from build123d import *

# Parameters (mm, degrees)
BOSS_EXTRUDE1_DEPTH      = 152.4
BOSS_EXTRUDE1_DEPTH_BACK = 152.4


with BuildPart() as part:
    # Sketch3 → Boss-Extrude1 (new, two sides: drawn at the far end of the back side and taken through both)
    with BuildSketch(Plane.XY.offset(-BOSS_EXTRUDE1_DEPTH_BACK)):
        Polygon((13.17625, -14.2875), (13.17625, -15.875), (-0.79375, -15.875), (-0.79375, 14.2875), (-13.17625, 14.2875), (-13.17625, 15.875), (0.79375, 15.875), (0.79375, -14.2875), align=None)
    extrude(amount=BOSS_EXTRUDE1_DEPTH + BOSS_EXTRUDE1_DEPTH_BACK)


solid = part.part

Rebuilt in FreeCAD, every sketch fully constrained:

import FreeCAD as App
import Part
import Sketcher
from FreeCAD import Vector
Q = App.Units.Quantity


def add_polygon(sketch, points):
    """Adds a closed chain of lines whose ends are joined by coincident constraints."""
    first, n = sketch.GeometryCount, len(points)
    for a, b in zip(points, points[1:] + points[:1]):
        sketch.addGeometry(Part.LineSegment(App.Vector(*a, 0), App.Vector(*b, 0)), False)
    for i in range(n):
        sketch.addConstraint(Sketcher.Constraint("Coincident", first + i, 2, first + (i + 1) % n, 1))

doc = App.newDocument("Part")
body = doc.addObject("PartDesign::Body", "Body")

# Sketch on XY plane
sketch1 = body.newObject("Sketcher::SketchObject", "Sketch")
sketch1.AttachmentSupport = (doc.getObject("XY_Plane"), [""])
sketch1.MapMode = "FlatFace"
add_polygon(sketch1, [(13.2, -15.9), (13.2, -14.3), (0.8, -14.3), (0.8, 15.9), (-13.2, 15.9), (-13.2, 14.3), (-0.8, 14.3), (-0.8, -15.9)])  # lines 0-7
sketch1.addConstraint([
    Sketcher.Constraint("Vertical", 0),
    Sketcher.Constraint("Horizontal", 1),
    Sketcher.Constraint("Vertical", 2),
    Sketcher.Constraint("Horizontal", 3),
    Sketcher.Constraint("Vertical", 4),
    Sketcher.Constraint("Horizontal", 5),
    Sketcher.Constraint("Vertical", 6),
    Sketcher.Constraint("Horizontal", 7),
    Sketcher.Constraint("Symmetric", 0, 2, 4, 2, -1, 1),
    Sketcher.Constraint("Symmetric", 2, 2, 6, 2, -1, 1),
    Sketcher.Constraint("DistanceX", 3, 2, 3, 1, Q("0.55 in")),
    Sketcher.Constraint("DistanceY", 0, 1, 0, 2, Q("0.0625 in")),
    Sketcher.Constraint("DistanceY", 2, 1, 2, 2, Q("1.1875 in")),
    Sketcher.Constraint("DistanceX", 1, 2, 1, 1, Q("0.4875 in")),
])
pad1 = body.newObject("PartDesign::Pad", "Pad")
pad1.Profile = sketch1
pad1.Type = "TwoLengths"
pad1.Length = Q("6 in")
pad1.Length2 = Q("6 in")

doc.recompute()
